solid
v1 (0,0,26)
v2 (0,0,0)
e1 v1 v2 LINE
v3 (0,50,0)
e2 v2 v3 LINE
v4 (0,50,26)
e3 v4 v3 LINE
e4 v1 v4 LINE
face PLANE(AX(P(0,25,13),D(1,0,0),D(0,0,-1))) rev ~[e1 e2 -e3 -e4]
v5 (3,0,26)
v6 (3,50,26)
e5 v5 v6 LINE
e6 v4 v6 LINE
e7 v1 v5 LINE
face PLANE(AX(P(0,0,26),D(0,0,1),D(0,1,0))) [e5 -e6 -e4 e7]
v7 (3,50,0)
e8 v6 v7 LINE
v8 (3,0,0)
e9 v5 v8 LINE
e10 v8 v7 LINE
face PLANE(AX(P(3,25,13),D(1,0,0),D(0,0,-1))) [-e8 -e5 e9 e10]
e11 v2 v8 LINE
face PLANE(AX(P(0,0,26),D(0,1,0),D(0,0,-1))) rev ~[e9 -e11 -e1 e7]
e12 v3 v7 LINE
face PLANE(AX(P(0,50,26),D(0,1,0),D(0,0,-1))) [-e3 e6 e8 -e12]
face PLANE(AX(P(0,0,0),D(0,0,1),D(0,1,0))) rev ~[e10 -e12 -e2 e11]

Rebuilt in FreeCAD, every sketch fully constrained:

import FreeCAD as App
import Part
import Sketcher

V = App.Vector
Q = App.Units.Quantity

doc = App.newDocument("Part")
body = doc.addObject("PartDesign::Body", "Body")

# Sketch on YZ plane
sketch1 = body.newObject("Sketcher::SketchObject", "Sketch")
sketch1.AttachmentSupport = (doc.getObject("YZ_Plane"), [""])
sketch1.MapMode = "FlatFace"
sketch1.addGeometry([
    Part.LineSegment(V(50, 26, 0), V(0, 26, 0)),
    Part.LineSegment(V(0, 26, 0), V(0, 0, 0)),
    Part.LineSegment(V(0, 0, 0), V(50, 0, 0)),
    Part.LineSegment(V(50, 0, 0), V(50, 26, 0)),
], False)
sketch1.addConstraint([
    Sketcher.Constraint("Coincident", 0, 2, 1, 1),
    Sketcher.Constraint("Coincident", 1, 2, 2, 1),
    Sketcher.Constraint("Coincident", 2, 2, 3, 1),
    Sketcher.Constraint("Coincident", 3, 2, 0, 1),
    Sketcher.Constraint("Horizontal", 0),
    Sketcher.Constraint("Vertical", 1),
    Sketcher.Constraint("Horizontal", 2),
    Sketcher.Constraint("Vertical", 3),
    Sketcher.Constraint("Coincident", 1, 2, -1, 1),
    Sketcher.Constraint("DistanceX", 0, 2, 0, 1, Q("50 mm")),
    Sketcher.Constraint("DistanceY", 1, 2, 1, 1, Q("26 mm")),
])
pad1 = body.newObject("PartDesign::Pad", "Pad")
pad1.Profile = sketch1
pad1.Length = 3

doc.recompute()
